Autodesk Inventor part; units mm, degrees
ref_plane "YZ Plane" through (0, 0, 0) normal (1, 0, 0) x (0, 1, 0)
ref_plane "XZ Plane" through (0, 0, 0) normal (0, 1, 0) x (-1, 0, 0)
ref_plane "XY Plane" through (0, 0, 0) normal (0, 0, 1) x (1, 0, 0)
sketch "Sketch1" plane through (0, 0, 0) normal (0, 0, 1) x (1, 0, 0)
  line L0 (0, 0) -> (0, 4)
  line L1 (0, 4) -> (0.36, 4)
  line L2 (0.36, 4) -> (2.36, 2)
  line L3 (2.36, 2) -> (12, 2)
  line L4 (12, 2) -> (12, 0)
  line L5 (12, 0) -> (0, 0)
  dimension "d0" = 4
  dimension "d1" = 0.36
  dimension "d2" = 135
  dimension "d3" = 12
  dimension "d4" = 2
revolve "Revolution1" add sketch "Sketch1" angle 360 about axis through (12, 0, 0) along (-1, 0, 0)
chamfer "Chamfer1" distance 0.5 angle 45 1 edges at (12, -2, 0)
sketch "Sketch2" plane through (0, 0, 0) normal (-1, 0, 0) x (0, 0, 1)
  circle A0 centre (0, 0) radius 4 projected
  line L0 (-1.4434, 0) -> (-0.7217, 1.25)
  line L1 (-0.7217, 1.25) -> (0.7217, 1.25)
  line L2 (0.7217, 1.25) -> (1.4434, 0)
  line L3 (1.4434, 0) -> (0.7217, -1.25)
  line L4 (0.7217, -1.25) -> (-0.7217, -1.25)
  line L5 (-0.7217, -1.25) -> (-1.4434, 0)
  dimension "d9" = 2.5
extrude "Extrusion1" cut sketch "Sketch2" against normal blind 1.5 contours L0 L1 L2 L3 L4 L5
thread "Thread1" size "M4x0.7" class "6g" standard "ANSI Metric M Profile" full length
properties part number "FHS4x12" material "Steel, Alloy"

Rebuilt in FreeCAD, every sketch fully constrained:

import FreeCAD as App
import Part
import Sketcher

V = App.Vector
Q = App.Units.Quantity


def edges_at(feature, points):
    """Names of the edges that pass closest to the given points."""
    edges = feature.Shape.Edges
    near = lambda p: min(range(len(edges)), key=lambda i: edges[i].distToShape(Part.Vertex(*p))[0])
    return sorted({f"Edge{near(p) + 1}" for p in points})

doc = App.newDocument("Part")
params = doc.addObject("Spreadsheet::Sheet", "Params")
for row, (alias, value) in enumerate([
    ("sketch1_width", "12 mm"),
    ("sketch1_height", "4 mm"),
    ("sketch1_height2", "2 mm"),
    ("sketch1_width2", "0.36 mm"),
    ("revolution_angle", "360 deg"),
    ("chamfer_size", "0.5 mm"),
    ("pocket1_length", "1.5 mm"),
], start=1):
    params.set(f"A{row}", alias)
    params.set(f"B{row}", "=" + value)
    params.setAlias(f"B{row}", alias)

body = doc.addObject("PartDesign::Body", "Body")

sketch1 = body.newObject("Sketcher::SketchObject", "Sketch")
sketch1.AttachmentSupport = (doc.getObject("XY_Plane"), [""])
sketch1.MapMode = "FlatFace"
sketch1.addGeometry(Part.LineSegment(V(0, 4, 0), V(0, 0, 0)), False)
sketch1.addGeometry(Part.LineSegment(V(0, 0, 0), V(12, 0, 0)), False)
sketch1.addGeometry(Part.LineSegment(V(12, 0, 0), V(12, 2, 0)), False)
sketch1.addGeometry(Part.LineSegment(V(12, 2, 0), V(2.36, 2, 0)), False)
sketch1.addGeometry(Part.LineSegment(V(2.36, 2, 0), V(0.36, 4, 0)), False)
sketch1.addGeometry(Part.LineSegment(V(0.36, 4, 0), V(0, 4, 0)), False)
sketch1.addConstraint(Sketcher.Constraint("Coincident", 0, 2, 1, 1))
sketch1.addConstraint(Sketcher.Constraint("Coincident", 1, 2, 2, 1))
sketch1.addConstraint(Sketcher.Constraint("Coincident", 2, 2, 3, 1))
sketch1.addConstraint(Sketcher.Constraint("Coincident", 3, 2, 4, 1))
sketch1.addConstraint(Sketcher.Constraint("Coincident", 4, 2, 5, 1))
sketch1.addConstraint(Sketcher.Constraint("Coincident", 5, 2, 0, 1))
sketch1.addConstraint(Sketcher.Constraint("Vertical", 0))
sketch1.addConstraint(Sketcher.Constraint("Horizontal", 1))
sketch1.addConstraint(Sketcher.Constraint("Vertical", 2))
sketch1.addConstraint(Sketcher.Constraint("Horizontal", 3))
sketch1.addConstraint(Sketcher.Constraint("Horizontal", 5))
sketch1.addConstraint(Sketcher.Constraint("Coincident", 0, 2, -1, 1))
sketch1.addConstraint(Sketcher.Constraint("DistanceX", 1, 1, 1, 2, 12.0))
sketch1.addConstraint(Sketcher.Constraint("DistanceY", 0, 2, 0, 1, 4.0))
sketch1.addConstraint(Sketcher.Constraint("DistanceY", 2, 1, 2, 2, 2.0))
sketch1.addConstraint(Sketcher.Constraint("Angle", 4, Q("135 deg")))
sketch1.addConstraint(Sketcher.Constraint("DistanceX", 5, 2, 5, 1, 0.36))
sketch1.setExpression("Constraints[12]", "Params.sketch1_width")
sketch1.setExpression("Constraints[13]", "Params.sketch1_height")
sketch1.setExpression("Constraints[14]", "Params.sketch1_height2")
sketch1.setExpression("Constraints[16]", "Params.sketch1_width2")
revolution = body.newObject("PartDesign::Revolution", "Revolution")
revolution.Profile = sketch1
revolution.ReferenceAxis = (sketch1, ["H_Axis"])
revolution.setExpression("Angle", "Params.revolution_angle")
doc.recompute()

chamfer = body.newObject("PartDesign::Chamfer", "Chamfer")
chamfer.Base = (revolution, edges_at(revolution, [(12, -2, 0)]))
chamfer.setExpression("Size", "Params.chamfer_size")

sketch2 = body.newObject("Sketcher::SketchObject", "Sketch001")
sketch2.AttachmentSupport = (doc.getObject("YZ_Plane"), [""])
sketch2.MapMode = "FlatFace"
sketch2.addGeometry(Part.LineSegment(V(1.25, -0.7217, 0), V(0, -1.4434, 0)), False)
sketch2.addGeometry(Part.LineSegment(V(0, -1.4434, 0), V(-1.25, -0.7217, 0)), False)
sketch2.addGeometry(Part.LineSegment(V(-1.25, -0.7217, 0), V(-1.25, 0.7217, 0)), False)
sketch2.addGeometry(Part.LineSegment(V(-1.25, 0.7217, 0), V(0, 1.4434, 0)), False)
sketch2.addGeometry(Part.LineSegment(V(0, 1.4434, 0), V(1.25, 0.7217, 0)), False)
sketch2.addGeometry(Part.LineSegment(V(1.25, 0.7217, 0), V(1.25, -0.7217, 0)), False)
sketch2.addConstraint(Sketcher.Constraint("Coincident", 0, 2, 1, 1))
sketch2.addConstraint(Sketcher.Constraint("Coincident", 1, 2, 2, 1))
sketch2.addConstraint(Sketcher.Constraint("Coincident", 2, 2, 3, 1))
sketch2.addConstraint(Sketcher.Constraint("Coincident", 3, 2, 4, 1))
sketch2.addConstraint(Sketcher.Constraint("Coincident", 4, 2, 5, 1))
sketch2.addConstraint(Sketcher.Constraint("Coincident", 5, 2, 0, 1))
sketch2.addConstraint(Sketcher.Constraint("Vertical", 2))
sketch2.addConstraint(Sketcher.Constraint("Vertical", 5))
sketch2.addConstraint(Sketcher.Constraint("Symmetric", 0, 2, 3, 2, -1, 1))
sketch2.addConstraint(Sketcher.Constraint("Symmetric", 1, 2, 4, 2, -1, 1))
sketch2.addConstraint(Sketcher.Constraint("PointOnObject", 0, 2, -2))
sketch2.addConstraint(Sketcher.Constraint("Parallel", 0, 3))
sketch2.addConstraint(Sketcher.Constraint("Horizontal", 2, 2, 4, 2))
sketch2.addConstraint(Sketcher.Constraint("DistanceX", 2, 2, 4, 2, 2.5))
sketch2.addConstraint(Sketcher.Constraint("Angle", 0, Q("-149.9996 deg")))
sketch2.addConstraint(Sketcher.Constraint("DistanceY", 2, 1, 2, 2, 1.4434))
pocket1 = body.newObject("PartDesign::Pocket", "Pocket")
pocket1.Profile = sketch2
pocket1.setExpression("Length", "Params.pocket1_length")
pocket1.Reversed = True

doc.recompute()
